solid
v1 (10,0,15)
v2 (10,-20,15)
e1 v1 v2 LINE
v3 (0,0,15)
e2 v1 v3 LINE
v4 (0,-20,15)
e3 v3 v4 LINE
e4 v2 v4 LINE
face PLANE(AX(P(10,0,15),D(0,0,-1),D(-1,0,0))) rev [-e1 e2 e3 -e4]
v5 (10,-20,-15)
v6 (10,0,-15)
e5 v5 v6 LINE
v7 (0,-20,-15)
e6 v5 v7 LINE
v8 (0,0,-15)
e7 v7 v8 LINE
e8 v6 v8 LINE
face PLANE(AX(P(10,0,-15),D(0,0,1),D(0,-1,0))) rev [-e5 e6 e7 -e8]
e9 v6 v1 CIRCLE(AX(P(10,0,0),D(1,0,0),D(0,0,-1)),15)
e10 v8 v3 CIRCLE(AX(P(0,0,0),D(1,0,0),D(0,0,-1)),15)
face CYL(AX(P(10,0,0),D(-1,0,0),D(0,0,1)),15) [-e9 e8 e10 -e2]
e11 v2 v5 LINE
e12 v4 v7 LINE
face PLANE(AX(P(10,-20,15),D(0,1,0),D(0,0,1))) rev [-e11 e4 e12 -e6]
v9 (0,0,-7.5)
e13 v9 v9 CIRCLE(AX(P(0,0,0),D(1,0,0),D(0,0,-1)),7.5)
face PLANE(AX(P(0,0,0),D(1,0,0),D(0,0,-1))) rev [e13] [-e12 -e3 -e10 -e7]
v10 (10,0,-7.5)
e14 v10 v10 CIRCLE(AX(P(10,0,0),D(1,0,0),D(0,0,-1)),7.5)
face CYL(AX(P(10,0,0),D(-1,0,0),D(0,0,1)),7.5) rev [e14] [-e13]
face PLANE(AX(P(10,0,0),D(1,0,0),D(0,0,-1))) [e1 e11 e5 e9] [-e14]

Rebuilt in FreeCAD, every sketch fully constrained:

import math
import FreeCAD as App
import Part
import Sketcher

V = App.Vector

doc = App.newDocument("Part")
body = doc.addObject("PartDesign::Body", "Body")

sketch1 = body.newObject("Sketcher::SketchObject", "Sketch")
sketch1.AttachmentSupport = (doc.getObject("YZ_Plane"), [""])
sketch1.MapMode = "FlatFace"
sketch1.addGeometry(Part.LineSegment(V(-20, 15, 0), V(-20, -15, 0)), False)
sketch1.addGeometry(Part.LineSegment(V(-20, -15, 0), V(0, -15, 0)), False)
sketch1.addGeometry(Part.ArcOfCircle(Part.Circle(V(0, 0, 0), V(0, 0, 1), 15), math.radians(-90), math.radians(90)), False)
sketch1.addGeometry(Part.LineSegment(V(0, 15, 0), V(-20, 15, 0)), False)
sketch1.addGeometry(Part.Circle(V(0, 0, 0), V(0, 0, 1), 8), False)
sketch1.addConstraint(Sketcher.Constraint("Coincident", 0, 2, 1, 1))
sketch1.addConstraint(Sketcher.Constraint("Tangent", 1, 2, 2, 1))
sketch1.addConstraint(Sketcher.Constraint("Tangent", 2, 2, 3, 1))
sketch1.addConstraint(Sketcher.Constraint("Coincident", 3, 2, 0, 1))
sketch1.addConstraint(Sketcher.Constraint("Vertical", 0))
sketch1.addConstraint(Sketcher.Constraint("Horizontal", 1))
sketch1.addConstraint(Sketcher.Constraint("Horizontal", 3))
sketch1.addConstraint(Sketcher.Constraint("Coincident", 2, 3, -1, 1))
sketch1.addConstraint(Sketcher.Constraint("Coincident", 4, 3, -1, 1))
sketch1.addConstraint(Sketcher.Constraint("Diameter", 4, 15.0))
sketch1.addConstraint(Sketcher.Constraint("Radius", 2, 15.0))
sketch1.addConstraint(Sketcher.Constraint("DistanceX", 1, 1, 1, 2, 20.0))
pad1 = body.newObject("PartDesign::Pad", "Pad")
pad1.Profile = sketch1
pad1.Length = 10

doc.recompute()
